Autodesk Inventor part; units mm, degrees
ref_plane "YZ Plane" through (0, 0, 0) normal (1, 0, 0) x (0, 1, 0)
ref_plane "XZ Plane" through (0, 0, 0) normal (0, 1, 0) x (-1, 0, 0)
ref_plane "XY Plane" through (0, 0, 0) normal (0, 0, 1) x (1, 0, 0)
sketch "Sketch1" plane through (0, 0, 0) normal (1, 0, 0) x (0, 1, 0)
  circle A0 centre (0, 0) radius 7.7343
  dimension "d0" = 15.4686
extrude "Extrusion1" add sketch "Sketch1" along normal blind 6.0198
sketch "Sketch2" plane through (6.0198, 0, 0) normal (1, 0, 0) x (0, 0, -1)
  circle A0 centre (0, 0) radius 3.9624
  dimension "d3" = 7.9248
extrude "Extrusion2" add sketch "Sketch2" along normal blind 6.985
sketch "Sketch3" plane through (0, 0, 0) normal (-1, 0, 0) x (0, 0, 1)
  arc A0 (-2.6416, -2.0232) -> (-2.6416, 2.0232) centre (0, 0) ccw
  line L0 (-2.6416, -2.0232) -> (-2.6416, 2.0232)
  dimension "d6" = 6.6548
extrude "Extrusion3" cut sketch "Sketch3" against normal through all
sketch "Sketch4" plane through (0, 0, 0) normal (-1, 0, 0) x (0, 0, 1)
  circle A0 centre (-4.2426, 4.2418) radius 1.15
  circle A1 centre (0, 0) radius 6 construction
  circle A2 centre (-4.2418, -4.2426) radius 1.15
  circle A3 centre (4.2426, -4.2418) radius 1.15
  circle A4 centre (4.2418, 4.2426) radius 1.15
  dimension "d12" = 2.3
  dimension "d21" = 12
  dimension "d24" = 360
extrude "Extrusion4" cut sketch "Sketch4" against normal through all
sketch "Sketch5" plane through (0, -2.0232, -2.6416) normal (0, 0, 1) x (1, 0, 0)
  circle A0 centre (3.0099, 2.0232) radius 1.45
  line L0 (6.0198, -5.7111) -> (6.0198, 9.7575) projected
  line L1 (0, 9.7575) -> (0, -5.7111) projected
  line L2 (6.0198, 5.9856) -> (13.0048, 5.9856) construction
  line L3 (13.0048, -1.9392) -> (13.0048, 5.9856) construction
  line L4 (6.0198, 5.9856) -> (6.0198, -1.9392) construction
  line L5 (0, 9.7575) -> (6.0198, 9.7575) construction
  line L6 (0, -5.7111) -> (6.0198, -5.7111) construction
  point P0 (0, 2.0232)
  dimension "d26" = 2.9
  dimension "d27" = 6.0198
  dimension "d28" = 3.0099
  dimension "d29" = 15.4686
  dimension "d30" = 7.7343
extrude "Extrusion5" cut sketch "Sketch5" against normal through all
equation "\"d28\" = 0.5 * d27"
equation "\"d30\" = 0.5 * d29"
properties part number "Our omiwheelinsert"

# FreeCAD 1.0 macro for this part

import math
import FreeCAD as App
import Part
import Sketcher
Q = App.Units.Quantity

doc = App.newDocument("Part")
body = doc.addObject("PartDesign::Body", "Body")

# Sketch on YZ plane
sketch1 = body.newObject("Sketcher::SketchObject", "Sketch")
sketch1.AttachmentSupport = (doc.getObject("YZ_Plane"), [""])
sketch1.MapMode = "FlatFace"
sketch1.addGeometry(Part.Circle(App.Vector(0, 0, 0), App.Vector(0, 0, 1), 8), False)
sketch1.addConstraint([
    Sketcher.Constraint("Coincident", 0, 3, -1, 1),
    Sketcher.Constraint("Diameter", 0, Q("0.609 in")),
])
pad1 = body.newObject("PartDesign::Pad", "Pad")
pad1.Profile = sketch1
pad1.Length = Q("0.237 in")

# Sketch on YZ plane
sketch2 = body.newObject("Sketcher::SketchObject", "Sketch001")
sketch2.AttachmentSupport = (doc.getObject("YZ_Plane"), [""])
sketch2.MapMode = "FlatFace"
sketch2.AttachmentOffset = App.Placement(App.Vector(0, 0, 0.237 * 25.4), App.Rotation())
sketch2.addGeometry(Part.Circle(App.Vector(0, 0, 0), App.Vector(0, 0, 1), 4), False)
sketch2.addConstraint([
    Sketcher.Constraint("Coincident", 0, 3, -1, 1),
    Sketcher.Constraint("Diameter", 0, Q("0.312 in")),
])
pad2 = body.newObject("PartDesign::Pad", "Pad001")
pad2.Profile = sketch2
pad2.Length = Q("0.275 in")

# Sketch on YZ plane
sketch3 = body.newObject("Sketcher::SketchObject", "Sketch002")
sketch3.AttachmentSupport = (doc.getObject("YZ_Plane"), [""])
sketch3.MapMode = "FlatFace"
sketch3.addGeometry([
    Part.LineSegment(App.Vector(2, -2.6, 0), App.Vector(-2, -2.6, 0)),
    Part.ArcOfCircle(Part.Circle(App.Vector(0, 0, 0), App.Vector(0, 0, 1), 3.3), math.radians(-53), math.radians(233)),
], False)
sketch3.addConstraint([
    Sketcher.Constraint("Coincident", 0, 1, 1, 1),
    Sketcher.Constraint("Coincident", 1, 2, 0, 2),
    Sketcher.Constraint("Horizontal", 0),
    Sketcher.Constraint("Coincident", 1, 3, -1, 1),
    Sketcher.Constraint("Radius", 1, Q("0.131 in")),
    Sketcher.Constraint("DistanceX", 0, 2, 0, 1, Q("0.1593 in")),
])
pocket1 = body.newObject("PartDesign::Pocket", "Pocket")
pocket1.Profile = sketch3
pocket1.Type = "ThroughAll"
pocket1.Reversed = True

# Sketch on YZ plane
sketch4 = body.newObject("Sketcher::SketchObject", "Sketch003")
sketch4.AttachmentSupport = (doc.getObject("YZ_Plane"), [""])
sketch4.MapMode = "FlatFace"
sketch4.addGeometry([
    Part.Circle(App.Vector(4.2, -4.2, 0), App.Vector(0, 0, 1), 1.1),
    Part.Circle(App.Vector(-4.2, -4.2, 0), App.Vector(0, 0, 1), 1.1),
    Part.Circle(App.Vector(-4.2, 4.2, 0), App.Vector(0, 0, 1), 1.1),
    Part.Circle(App.Vector(4.2, 4.2, 0), App.Vector(0, 0, 1), 1.1),
], False)
sketch4.addConstraint([
    Sketcher.Constraint("Equal", 0, 1),
    Sketcher.Constraint("Equal", 1, 2),
    Sketcher.Constraint("Equal", 2, 3),
    Sketcher.Constraint("Symmetric", 0, 3, 2, 3, -1, 1),
    Sketcher.Constraint("Symmetric", 1, 3, 3, 3, -1, 1),
    Sketcher.Constraint("Diameter", 0, 2.3),
    Sketcher.Constraint("DistanceX", -1, 1, 0, 3, Q("0.167 in")),
    Sketcher.Constraint("DistanceY", 1, 3, -1, 1, Q("0.167 in")),
    Sketcher.Constraint("DistanceY", 0, 3, -1, 1, 4.2426),
    Sketcher.Constraint("DistanceX", 1, 3, -1, 1, 4.2426),
])
pocket2 = body.newObject("PartDesign::Pocket", "Pocket001")
pocket2.Profile = sketch4
pocket2.Type = "ThroughAll"
pocket2.Reversed = True

# Sketch on XY plane
sketch5 = body.newObject("Sketcher::SketchObject", "Sketch004")
sketch5.AttachmentSupport = (doc.getObject("XY_Plane"), [""])
sketch5.MapMode = "FlatFace"
sketch5.AttachmentOffset = App.Placement(App.Vector(0, 0, -0.104 * 25.4), App.Rotation())
sketch5.addGeometry(Part.Circle(App.Vector(3, 0, 0), App.Vector(0, 0, 1), 1.4), False)
sketch5.addConstraint([
    Sketcher.Constraint("PointOnObject", 0, 3, -1),
    Sketcher.Constraint("Diameter", 0, 2.9),
    Sketcher.Constraint("DistanceX", -1, 1, 0, 3, Q("0.1185 in")),
])
pocket3 = body.newObject("PartDesign::Pocket", "Pocket002")
pocket3.Profile = sketch5
pocket3.Type = "ThroughAll"

doc.recompute()
